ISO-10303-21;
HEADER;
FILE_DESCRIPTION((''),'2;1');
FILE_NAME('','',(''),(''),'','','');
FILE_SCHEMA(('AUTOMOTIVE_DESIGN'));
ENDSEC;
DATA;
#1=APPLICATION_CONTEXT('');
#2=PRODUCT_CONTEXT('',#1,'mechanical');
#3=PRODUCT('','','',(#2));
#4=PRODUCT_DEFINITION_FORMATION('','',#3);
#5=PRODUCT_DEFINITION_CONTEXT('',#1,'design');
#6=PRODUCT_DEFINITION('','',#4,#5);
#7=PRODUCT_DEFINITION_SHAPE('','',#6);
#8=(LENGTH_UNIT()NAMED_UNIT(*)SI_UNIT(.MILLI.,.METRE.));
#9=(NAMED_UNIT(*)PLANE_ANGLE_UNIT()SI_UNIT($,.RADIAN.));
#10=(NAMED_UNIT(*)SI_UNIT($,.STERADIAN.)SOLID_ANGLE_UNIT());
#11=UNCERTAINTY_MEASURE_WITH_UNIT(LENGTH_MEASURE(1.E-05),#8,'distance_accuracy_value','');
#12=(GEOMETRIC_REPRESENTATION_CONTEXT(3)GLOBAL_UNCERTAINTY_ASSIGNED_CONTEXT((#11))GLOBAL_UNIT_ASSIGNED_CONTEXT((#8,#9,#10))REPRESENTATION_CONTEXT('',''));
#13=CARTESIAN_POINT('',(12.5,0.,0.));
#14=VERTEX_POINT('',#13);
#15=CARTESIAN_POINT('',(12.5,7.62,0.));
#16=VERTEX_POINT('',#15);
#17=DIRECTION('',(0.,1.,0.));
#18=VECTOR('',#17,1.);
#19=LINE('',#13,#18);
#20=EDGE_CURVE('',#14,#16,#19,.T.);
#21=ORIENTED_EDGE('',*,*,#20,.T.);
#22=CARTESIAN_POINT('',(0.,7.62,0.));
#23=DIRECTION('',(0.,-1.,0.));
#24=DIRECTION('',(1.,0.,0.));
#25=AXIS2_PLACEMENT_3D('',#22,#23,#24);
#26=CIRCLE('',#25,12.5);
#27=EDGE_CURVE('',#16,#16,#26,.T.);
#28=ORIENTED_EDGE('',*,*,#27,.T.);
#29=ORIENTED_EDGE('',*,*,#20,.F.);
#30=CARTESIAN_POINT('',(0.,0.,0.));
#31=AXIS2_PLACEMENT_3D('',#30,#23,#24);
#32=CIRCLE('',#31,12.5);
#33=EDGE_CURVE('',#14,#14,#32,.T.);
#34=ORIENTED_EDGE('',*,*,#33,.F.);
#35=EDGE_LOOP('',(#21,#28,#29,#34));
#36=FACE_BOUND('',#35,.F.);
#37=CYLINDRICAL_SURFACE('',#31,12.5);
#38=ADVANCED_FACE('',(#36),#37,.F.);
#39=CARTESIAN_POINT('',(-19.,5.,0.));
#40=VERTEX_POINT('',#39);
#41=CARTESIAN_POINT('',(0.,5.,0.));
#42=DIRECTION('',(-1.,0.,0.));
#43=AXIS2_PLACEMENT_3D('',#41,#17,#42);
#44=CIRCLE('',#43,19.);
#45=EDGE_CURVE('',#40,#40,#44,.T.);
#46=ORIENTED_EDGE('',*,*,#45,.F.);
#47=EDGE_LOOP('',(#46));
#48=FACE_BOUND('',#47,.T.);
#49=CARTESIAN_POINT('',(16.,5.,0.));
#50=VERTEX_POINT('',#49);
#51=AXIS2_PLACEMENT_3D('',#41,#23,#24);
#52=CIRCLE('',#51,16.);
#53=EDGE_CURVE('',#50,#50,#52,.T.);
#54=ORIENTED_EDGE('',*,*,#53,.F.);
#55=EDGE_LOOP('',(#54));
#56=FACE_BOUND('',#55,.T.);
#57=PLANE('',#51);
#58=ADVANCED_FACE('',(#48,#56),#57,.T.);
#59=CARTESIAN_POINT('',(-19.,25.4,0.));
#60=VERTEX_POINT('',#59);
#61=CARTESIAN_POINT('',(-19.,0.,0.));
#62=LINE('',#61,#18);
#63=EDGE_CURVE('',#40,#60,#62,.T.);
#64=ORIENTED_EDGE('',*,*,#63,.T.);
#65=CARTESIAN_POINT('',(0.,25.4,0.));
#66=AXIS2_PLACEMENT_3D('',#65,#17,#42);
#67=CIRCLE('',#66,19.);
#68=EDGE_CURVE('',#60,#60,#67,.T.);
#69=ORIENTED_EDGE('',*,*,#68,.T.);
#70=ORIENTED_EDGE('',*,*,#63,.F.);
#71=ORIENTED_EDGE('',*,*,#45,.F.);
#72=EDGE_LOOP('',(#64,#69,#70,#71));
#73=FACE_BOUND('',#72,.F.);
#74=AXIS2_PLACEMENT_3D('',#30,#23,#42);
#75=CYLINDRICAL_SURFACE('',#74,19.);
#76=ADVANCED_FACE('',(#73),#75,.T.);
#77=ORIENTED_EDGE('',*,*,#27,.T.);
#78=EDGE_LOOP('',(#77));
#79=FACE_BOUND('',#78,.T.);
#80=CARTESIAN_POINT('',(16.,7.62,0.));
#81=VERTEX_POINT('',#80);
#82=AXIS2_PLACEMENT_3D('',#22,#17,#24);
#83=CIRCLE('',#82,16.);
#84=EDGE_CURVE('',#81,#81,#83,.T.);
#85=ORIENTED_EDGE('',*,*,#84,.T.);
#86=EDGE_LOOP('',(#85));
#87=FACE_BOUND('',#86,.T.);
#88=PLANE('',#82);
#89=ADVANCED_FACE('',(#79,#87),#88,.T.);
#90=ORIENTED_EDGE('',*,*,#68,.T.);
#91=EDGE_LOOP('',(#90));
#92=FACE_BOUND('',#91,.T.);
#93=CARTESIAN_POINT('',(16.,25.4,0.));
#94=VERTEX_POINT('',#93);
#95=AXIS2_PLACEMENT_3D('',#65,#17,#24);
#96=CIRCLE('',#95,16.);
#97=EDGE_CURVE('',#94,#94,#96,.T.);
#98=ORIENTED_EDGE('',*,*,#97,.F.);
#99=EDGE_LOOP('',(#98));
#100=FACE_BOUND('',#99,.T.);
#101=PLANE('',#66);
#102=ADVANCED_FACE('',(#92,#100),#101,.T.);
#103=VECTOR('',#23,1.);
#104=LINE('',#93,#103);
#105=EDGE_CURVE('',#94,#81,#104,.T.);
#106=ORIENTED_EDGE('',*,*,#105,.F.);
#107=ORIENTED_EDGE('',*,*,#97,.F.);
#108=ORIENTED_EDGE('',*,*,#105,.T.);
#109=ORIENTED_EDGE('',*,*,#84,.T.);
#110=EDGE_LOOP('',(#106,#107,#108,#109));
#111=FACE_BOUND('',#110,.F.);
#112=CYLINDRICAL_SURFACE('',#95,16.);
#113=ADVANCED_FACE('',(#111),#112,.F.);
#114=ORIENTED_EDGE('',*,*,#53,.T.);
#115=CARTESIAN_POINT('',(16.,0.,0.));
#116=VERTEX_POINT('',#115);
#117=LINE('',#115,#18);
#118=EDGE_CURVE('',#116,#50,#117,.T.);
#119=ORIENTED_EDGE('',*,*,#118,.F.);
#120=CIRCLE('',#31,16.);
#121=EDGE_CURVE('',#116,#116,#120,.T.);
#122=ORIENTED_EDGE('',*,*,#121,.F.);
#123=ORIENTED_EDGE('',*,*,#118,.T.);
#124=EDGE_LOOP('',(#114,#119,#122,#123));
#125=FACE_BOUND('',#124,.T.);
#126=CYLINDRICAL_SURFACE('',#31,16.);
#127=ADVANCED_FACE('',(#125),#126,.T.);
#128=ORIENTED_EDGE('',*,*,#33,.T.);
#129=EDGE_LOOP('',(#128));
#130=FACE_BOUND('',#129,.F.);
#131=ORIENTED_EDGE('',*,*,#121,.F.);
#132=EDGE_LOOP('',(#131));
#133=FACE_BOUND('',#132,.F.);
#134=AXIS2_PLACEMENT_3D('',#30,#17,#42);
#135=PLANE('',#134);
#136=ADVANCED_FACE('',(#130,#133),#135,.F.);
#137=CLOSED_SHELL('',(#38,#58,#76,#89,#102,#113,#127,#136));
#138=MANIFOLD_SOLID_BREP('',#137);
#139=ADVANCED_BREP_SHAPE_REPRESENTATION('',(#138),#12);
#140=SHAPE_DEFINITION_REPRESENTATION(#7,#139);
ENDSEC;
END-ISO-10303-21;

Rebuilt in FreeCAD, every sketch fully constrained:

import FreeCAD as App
import Part
import Sketcher

V = App.Vector

doc = App.newDocument("Part")
body = doc.addObject("PartDesign::Body", "Body")

# Sketch on XZ plane
sketch1 = body.newObject("Sketcher::SketchObject", "Sketch")
sketch1.AttachmentSupport = (doc.getObject("XZ_Plane"), [""])
sketch1.MapMode = "FlatFace"
sketch1.addGeometry(Part.Circle(V(0, 0, 0), V(0, 0, 1), 19), False)
sketch1.addConstraint([
    Sketcher.Constraint("Coincident", 0, 3, -1, 1),
    Sketcher.Constraint("Diameter", 0, 38.0),
])
pad1 = body.newObject("PartDesign::Pad", "Pad")
pad1.Profile = sketch1
pad1.Length = 25.4
pad1.Reversed = True

# Sketch on XZ plane
sketch2 = body.newObject("Sketcher::SketchObject", "Sketch001")
sketch2.AttachmentSupport = (doc.getObject("XZ_Plane"), [""])
sketch2.MapMode = "FlatFace"
sketch2.addGeometry([
    Part.Circle(V(0, 0, 0), V(0, 0, 1), 19),
    Part.Circle(V(0, 0, 0), V(0, 0, 1), 16),
], False)
sketch2.addConstraint([
    Sketcher.Constraint("Coincident", 0, 3, -1, 1),
    Sketcher.Constraint("Coincident", 1, 3, -1, 1),
    Sketcher.Constraint("Diameter", 1, 32.0),
    Sketcher.Constraint("Diameter", 0, 38.0),
])
pocket1 = body.newObject("PartDesign::Pocket", "Pocket")
pocket1.Profile = sketch2
pocket1.Length = 5

# Sketch on XZ plane
sketch3 = body.newObject("Sketcher::SketchObject", "Sketch002")
sketch3.AttachmentSupport = (doc.getObject("XZ_Plane"), [""])
sketch3.MapMode = "FlatFace"
sketch3.AttachmentOffset = App.Placement(V(0, 0, -25.4), App.Rotation())
sketch3.addGeometry(Part.Circle(V(0, 0, 0), V(0, 0, 1), 16), False)
sketch3.addConstraint([
    Sketcher.Constraint("Coincident", 0, 3, -1, 1),
    Sketcher.Constraint("Diameter", 0, 32.0),
])
pocket2 = body.newObject("PartDesign::Pocket", "Pocket001")
pocket2.Profile = sketch3
pocket2.Length = 17.78
pocket2.Reversed = True

# Sketch on XZ plane
sketch4 = body.newObject("Sketcher::SketchObject", "Sketch003")
sketch4.AttachmentSupport = (doc.getObject("XZ_Plane"), [""])
sketch4.MapMode = "FlatFace"
sketch4.addGeometry(Part.Circle(V(0, 0, 0), V(0, 0, 1), 12.5), False)
sketch4.addConstraint([
    Sketcher.Constraint("Coincident", 0, 3, -1, 1),
    Sketcher.Constraint("Diameter", 0, 25.0),
])
pocket3 = body.newObject("PartDesign::Pocket", "Pocket002")
pocket3.Profile = sketch4
pocket3.Length = 17.78

doc.recompute()
